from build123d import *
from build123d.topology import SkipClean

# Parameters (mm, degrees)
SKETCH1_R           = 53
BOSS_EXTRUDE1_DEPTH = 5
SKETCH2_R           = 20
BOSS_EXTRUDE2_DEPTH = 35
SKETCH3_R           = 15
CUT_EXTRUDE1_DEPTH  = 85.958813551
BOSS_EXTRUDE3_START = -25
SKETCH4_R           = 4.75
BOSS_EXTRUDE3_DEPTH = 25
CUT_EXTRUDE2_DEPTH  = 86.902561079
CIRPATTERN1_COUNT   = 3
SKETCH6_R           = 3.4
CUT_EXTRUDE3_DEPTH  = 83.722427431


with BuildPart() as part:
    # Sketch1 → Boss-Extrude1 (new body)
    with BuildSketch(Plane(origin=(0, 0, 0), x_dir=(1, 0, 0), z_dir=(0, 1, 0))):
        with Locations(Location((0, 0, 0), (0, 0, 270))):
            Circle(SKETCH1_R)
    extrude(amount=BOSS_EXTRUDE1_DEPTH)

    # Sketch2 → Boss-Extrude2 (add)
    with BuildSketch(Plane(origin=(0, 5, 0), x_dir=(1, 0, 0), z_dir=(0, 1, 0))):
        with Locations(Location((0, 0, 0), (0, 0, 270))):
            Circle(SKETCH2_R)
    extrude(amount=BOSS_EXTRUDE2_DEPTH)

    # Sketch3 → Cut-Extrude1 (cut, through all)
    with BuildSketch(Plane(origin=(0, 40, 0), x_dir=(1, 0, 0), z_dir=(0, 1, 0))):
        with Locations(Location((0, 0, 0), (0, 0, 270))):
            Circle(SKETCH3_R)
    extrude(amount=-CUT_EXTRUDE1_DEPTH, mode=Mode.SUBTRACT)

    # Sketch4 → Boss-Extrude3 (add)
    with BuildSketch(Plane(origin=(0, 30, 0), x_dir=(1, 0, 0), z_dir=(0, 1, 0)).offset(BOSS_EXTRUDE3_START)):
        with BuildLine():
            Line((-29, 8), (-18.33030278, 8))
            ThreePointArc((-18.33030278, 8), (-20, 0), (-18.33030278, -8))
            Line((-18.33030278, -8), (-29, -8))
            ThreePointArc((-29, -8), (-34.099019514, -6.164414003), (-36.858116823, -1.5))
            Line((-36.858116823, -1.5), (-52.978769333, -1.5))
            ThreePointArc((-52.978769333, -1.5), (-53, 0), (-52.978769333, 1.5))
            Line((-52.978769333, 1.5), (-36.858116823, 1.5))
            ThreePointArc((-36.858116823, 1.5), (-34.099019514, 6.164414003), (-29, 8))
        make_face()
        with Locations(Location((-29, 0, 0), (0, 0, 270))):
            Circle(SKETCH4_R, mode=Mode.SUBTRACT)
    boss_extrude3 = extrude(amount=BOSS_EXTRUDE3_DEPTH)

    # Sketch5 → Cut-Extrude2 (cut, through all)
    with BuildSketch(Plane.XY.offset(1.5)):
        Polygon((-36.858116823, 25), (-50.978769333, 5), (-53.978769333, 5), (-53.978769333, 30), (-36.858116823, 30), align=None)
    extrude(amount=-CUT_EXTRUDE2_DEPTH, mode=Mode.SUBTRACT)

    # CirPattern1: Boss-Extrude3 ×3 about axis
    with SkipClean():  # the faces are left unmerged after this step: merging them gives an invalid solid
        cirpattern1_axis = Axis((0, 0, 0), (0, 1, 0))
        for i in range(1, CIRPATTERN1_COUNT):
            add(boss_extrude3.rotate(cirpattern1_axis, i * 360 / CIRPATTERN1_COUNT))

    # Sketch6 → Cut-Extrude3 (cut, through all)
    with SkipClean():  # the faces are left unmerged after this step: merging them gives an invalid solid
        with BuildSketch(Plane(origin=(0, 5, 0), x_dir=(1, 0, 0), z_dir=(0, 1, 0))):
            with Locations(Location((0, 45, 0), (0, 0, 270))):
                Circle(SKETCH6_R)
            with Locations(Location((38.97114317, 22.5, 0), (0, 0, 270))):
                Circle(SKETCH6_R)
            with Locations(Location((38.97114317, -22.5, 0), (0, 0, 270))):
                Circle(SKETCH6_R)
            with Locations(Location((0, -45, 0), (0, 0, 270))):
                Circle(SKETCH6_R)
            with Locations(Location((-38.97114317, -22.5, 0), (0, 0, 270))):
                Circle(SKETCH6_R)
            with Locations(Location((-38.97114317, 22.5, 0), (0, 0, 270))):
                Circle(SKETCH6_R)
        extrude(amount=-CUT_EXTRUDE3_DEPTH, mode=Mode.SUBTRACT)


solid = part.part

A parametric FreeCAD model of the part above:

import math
import FreeCAD as App
import Part
import Sketcher
Q = App.Units.Quantity


def add_polygon(sketch, points):
    """Adds a closed chain of lines whose ends are joined by coincident constraints."""
    first, n = sketch.GeometryCount, len(points)
    for a, b in zip(points, points[1:] + points[:1]):
        sketch.addGeometry(Part.LineSegment(App.Vector(*a, 0), App.Vector(*b, 0)), False)
    for i in range(n):
        sketch.addConstraint(Sketcher.Constraint("Coincident", first + i, 2, first + (i + 1) % n, 1))

doc = App.newDocument("Part")
body = doc.addObject("PartDesign::Body", "Body")

sketch1 = body.newObject("Sketcher::SketchObject", "Sketch")
sketch1.AttachmentSupport = (doc.getObject("XZ_Plane"), [""])
sketch1.MapMode = "FlatFace"
sketch1.addGeometry(Part.Circle(App.Vector(0, 0, 0), App.Vector(0, 0, 1), 53), False)
sketch1.addConstraint([
    Sketcher.Constraint("Coincident", 0, 3, -1, 1),
    Sketcher.Constraint("Diameter", 0, Q("106 mm")),
])
pad1 = body.newObject("PartDesign::Pad", "Pad")
pad1.Profile = sketch1
pad1.Length = 5
pad1.Reversed = True

sketch2 = body.newObject("Sketcher::SketchObject", "Sketch001")
sketch2.AttachmentSupport = (doc.getObject("XZ_Plane"), [""])
sketch2.MapMode = "FlatFace"
sketch2.AttachmentOffset = App.Placement(App.Vector(0, 0, -5), App.Rotation())
sketch2.addGeometry(Part.Circle(App.Vector(0, 0, 0), App.Vector(0, 0, 1), 20), False)
sketch2.addConstraint([
    Sketcher.Constraint("Coincident", 0, 3, -1, 1),
    Sketcher.Constraint("Diameter", 0, Q("40 mm")),
])
pad2 = body.newObject("PartDesign::Pad", "Pad001")
pad2.Profile = sketch2
pad2.Length = 35
pad2.Reversed = True

sketch3 = body.newObject("Sketcher::SketchObject", "Sketch002")
sketch3.AttachmentSupport = (doc.getObject("XZ_Plane"), [""])
sketch3.MapMode = "FlatFace"
sketch3.AttachmentOffset = App.Placement(App.Vector(0, 0, -40), App.Rotation())
sketch3.addGeometry(Part.Circle(App.Vector(0, 0, 0), App.Vector(0, 0, 1), 15), False)
sketch3.addConstraint([
    Sketcher.Constraint("Coincident", 0, 3, -1, 1),
    Sketcher.Constraint("Diameter", 0, Q("30 mm")),
])
pocket1 = body.newObject("PartDesign::Pocket", "Pocket")
pocket1.Profile = sketch3
pocket1.Type = "ThroughAll"
pocket1.Reversed = True

sketch4 = body.newObject("Sketcher::SketchObject", "Sketch003")
sketch4.AttachmentSupport = (doc.getObject("XZ_Plane"), [""])
sketch4.MapMode = "FlatFace"
sketch4.AttachmentOffset = App.Placement(App.Vector(0, 0, -5), App.Rotation())
sketch4.addGeometry([
    Part.LineSegment(App.Vector(-18.3, -8, 0), App.Vector(-29, -8, 0)),
    Part.ArcOfCircle(Part.Circle(App.Vector(-29, 0, 0), App.Vector(0, 0, 1), 8), math.radians(-169), math.radians(-90)),
    Part.LineSegment(App.Vector(-36.9, -1.5, 0), App.Vector(-53, -1.5, 0)),
    Part.ArcOfCircle(Part.Circle(App.Vector(0, 0, 0), App.Vector(0, 0, 1), 53), math.radians(178.38), math.radians(181.62)),
    Part.LineSegment(App.Vector(-53, 1.5, 0), App.Vector(-36.9, 1.5, 0)),
    Part.ArcOfCircle(Part.Circle(App.Vector(-29, 0, 0), App.Vector(0, 0, 1), 8), math.radians(90), math.radians(169)),
    Part.LineSegment(App.Vector(-29, 8, 0), App.Vector(-18.3, 8, 0)),
    Part.ArcOfCircle(Part.Circle(App.Vector(0, 0, 0), App.Vector(0, 0, 1), 20), math.radians(156), math.radians(204)),
    Part.Circle(App.Vector(-29, 0, 0), App.Vector(0, 0, 1), 4.8),
], False)
sketch4.addConstraint([
    Sketcher.Constraint("Tangent", 0, 2, 1, 2),
    Sketcher.Constraint("Coincident", 1, 1, 2, 1),
    Sketcher.Constraint("Coincident", 2, 2, 3, 2),
    Sketcher.Constraint("Coincident", 3, 1, 4, 1),
    Sketcher.Constraint("Coincident", 4, 2, 5, 2),
    Sketcher.Constraint("Tangent", 5, 1, 6, 1),
    Sketcher.Constraint("Coincident", 6, 2, 7, 1),
    Sketcher.Constraint("Coincident", 7, 2, 0, 1),
    Sketcher.Constraint("Horizontal", 0),
    Sketcher.Constraint("Horizontal", 2),
    Sketcher.Constraint("Horizontal", 4),
    Sketcher.Constraint("Horizontal", 6),
    Sketcher.Constraint("Coincident", 3, 3, -1, 1),
    Sketcher.Constraint("Coincident", 7, 3, -1, 1),
    Sketcher.Constraint("Coincident", 5, 3, 1, 3),
    Sketcher.Constraint("Coincident", 8, 3, 1, 3),
    Sketcher.Constraint("Equal", 1, 5),
    Sketcher.Constraint("Symmetric", 1, 1, 4, 2, -1),
    Sketcher.Constraint("Radius", 1, Q("8 mm")),
    Sketcher.Constraint("Radius", 3, Q("53.000001 mm")),
    Sketcher.Constraint("Radius", 7, Q("20 mm")),
    Sketcher.Constraint("Diameter", 8, Q("9.5 mm")),
    Sketcher.Constraint("DistanceX", 1, 3, -1, 1, Q("29 mm")),
    Sketcher.Constraint("DistanceY", 2, 2, 3, 1, Q("3 mm")),
])
pad3 = body.newObject("PartDesign::Pad", "Pad002")
pad3.Profile = sketch4
pad3.Length = 25
pad3.Reversed = True

sketch5 = body.newObject("Sketcher::SketchObject", "Sketch004")
sketch5.AttachmentSupport = (doc.getObject("XY_Plane"), [""])
sketch5.MapMode = "FlatFace"
sketch5.AttachmentOffset = App.Placement(App.Vector(0, 0, 1.5), App.Rotation())
add_polygon(sketch5, [(-51, 5), (-36.9, 25), (-36.9, 30), (-54, 30), (-54, 5)])
sketch5.addConstraint([
    Sketcher.Constraint("Vertical", 1),
    Sketcher.Constraint("Horizontal", 2),
    Sketcher.Constraint("Vertical", 3),
    Sketcher.Constraint("Horizontal", 4),
    Sketcher.Constraint("DistanceX", 4, 1, 4, 2, Q("3 mm")),
    Sketcher.Constraint("DistanceY", 1, 1, 1, 2, Q("5 mm")),
    Sketcher.Constraint("DistanceY", 3, 2, 3, 1, Q("25 mm")),
    Sketcher.Constraint("DistanceY", -1, 1, 0, 2, Q("25 mm")),
    Sketcher.Constraint("Distance", 0, Q("24.4825 mm")),
    Sketcher.Constraint("DistanceX", 2, 2, -1, 1, Q("53.978769 mm")),
])
pocket2 = body.newObject("PartDesign::Pocket", "Pocket001")
pocket2.Profile = sketch5
pocket2.Type = "ThroughAll"
doc.recompute()

polarpattern = body.newObject("PartDesign::PolarPattern", "PolarPattern")
polarpattern.Originals = [pad3]
polarpattern.Axis = (doc.getObject("Y_Axis"), [""])
polarpattern.Angle = 360
polarpattern.Occurrences = 3
body.Tip = polarpattern

sketch6 = body.newObject("Sketcher::SketchObject", "Sketch005")
sketch6.AttachmentSupport = (doc.getObject("XZ_Plane"), [""])
sketch6.MapMode = "FlatFace"
sketch6.AttachmentOffset = App.Placement(App.Vector(0, 0, -5), App.Rotation())
sketch6.addGeometry([
    Part.Circle(App.Vector(0, -45, 0), App.Vector(0, 0, 1), 3.4),
    Part.Circle(App.Vector(39, -22.5, 0), App.Vector(0, 0, 1), 3.4),
    Part.Circle(App.Vector(39, 22.5, 0), App.Vector(0, 0, 1), 3.4),
    Part.Circle(App.Vector(0, 45, 0), App.Vector(0, 0, 1), 3.4),
    Part.Circle(App.Vector(-39, 22.5, 0), App.Vector(0, 0, 1), 3.4),
    Part.Circle(App.Vector(-39, -22.5, 0), App.Vector(0, 0, 1), 3.4),
], False)
sketch6.addConstraint([
    Sketcher.Constraint("Equal", 0, 1),
    Sketcher.Constraint("Equal", 1, 2),
    Sketcher.Constraint("Equal", 2, 3),
    Sketcher.Constraint("Equal", 3, 4),
    Sketcher.Constraint("Equal", 4, 5),
    Sketcher.Constraint("Symmetric", 0, 3, 3, 3, -1, 1),
    Sketcher.Constraint("Symmetric", 1, 3, 4, 3, -1, 1),
    Sketcher.Constraint("Symmetric", 2, 3, 5, 3, -1, 1),
    Sketcher.Constraint("Symmetric", 2, 3, 4, 3, -2),
    Sketcher.Constraint("PointOnObject", 0, 3, -2),
    Sketcher.Constraint("Diameter", 0, Q("6.8 mm")),
    Sketcher.Constraint("DistanceY", 0, 3, -1, 1, Q("45 mm")),
    Sketcher.Constraint("DistanceY", 1, 3, 2, 3, Q("45 mm")),
    Sketcher.Constraint("DistanceX", -1, 1, 1, 3, Q("38.971143 mm")),
])
pocket3 = body.newObject("PartDesign::Pocket", "Pocket002")
pocket3.Profile = sketch6
pocket3.Type = "ThroughAll"
pocket3.Reversed = True

doc.recompute()
